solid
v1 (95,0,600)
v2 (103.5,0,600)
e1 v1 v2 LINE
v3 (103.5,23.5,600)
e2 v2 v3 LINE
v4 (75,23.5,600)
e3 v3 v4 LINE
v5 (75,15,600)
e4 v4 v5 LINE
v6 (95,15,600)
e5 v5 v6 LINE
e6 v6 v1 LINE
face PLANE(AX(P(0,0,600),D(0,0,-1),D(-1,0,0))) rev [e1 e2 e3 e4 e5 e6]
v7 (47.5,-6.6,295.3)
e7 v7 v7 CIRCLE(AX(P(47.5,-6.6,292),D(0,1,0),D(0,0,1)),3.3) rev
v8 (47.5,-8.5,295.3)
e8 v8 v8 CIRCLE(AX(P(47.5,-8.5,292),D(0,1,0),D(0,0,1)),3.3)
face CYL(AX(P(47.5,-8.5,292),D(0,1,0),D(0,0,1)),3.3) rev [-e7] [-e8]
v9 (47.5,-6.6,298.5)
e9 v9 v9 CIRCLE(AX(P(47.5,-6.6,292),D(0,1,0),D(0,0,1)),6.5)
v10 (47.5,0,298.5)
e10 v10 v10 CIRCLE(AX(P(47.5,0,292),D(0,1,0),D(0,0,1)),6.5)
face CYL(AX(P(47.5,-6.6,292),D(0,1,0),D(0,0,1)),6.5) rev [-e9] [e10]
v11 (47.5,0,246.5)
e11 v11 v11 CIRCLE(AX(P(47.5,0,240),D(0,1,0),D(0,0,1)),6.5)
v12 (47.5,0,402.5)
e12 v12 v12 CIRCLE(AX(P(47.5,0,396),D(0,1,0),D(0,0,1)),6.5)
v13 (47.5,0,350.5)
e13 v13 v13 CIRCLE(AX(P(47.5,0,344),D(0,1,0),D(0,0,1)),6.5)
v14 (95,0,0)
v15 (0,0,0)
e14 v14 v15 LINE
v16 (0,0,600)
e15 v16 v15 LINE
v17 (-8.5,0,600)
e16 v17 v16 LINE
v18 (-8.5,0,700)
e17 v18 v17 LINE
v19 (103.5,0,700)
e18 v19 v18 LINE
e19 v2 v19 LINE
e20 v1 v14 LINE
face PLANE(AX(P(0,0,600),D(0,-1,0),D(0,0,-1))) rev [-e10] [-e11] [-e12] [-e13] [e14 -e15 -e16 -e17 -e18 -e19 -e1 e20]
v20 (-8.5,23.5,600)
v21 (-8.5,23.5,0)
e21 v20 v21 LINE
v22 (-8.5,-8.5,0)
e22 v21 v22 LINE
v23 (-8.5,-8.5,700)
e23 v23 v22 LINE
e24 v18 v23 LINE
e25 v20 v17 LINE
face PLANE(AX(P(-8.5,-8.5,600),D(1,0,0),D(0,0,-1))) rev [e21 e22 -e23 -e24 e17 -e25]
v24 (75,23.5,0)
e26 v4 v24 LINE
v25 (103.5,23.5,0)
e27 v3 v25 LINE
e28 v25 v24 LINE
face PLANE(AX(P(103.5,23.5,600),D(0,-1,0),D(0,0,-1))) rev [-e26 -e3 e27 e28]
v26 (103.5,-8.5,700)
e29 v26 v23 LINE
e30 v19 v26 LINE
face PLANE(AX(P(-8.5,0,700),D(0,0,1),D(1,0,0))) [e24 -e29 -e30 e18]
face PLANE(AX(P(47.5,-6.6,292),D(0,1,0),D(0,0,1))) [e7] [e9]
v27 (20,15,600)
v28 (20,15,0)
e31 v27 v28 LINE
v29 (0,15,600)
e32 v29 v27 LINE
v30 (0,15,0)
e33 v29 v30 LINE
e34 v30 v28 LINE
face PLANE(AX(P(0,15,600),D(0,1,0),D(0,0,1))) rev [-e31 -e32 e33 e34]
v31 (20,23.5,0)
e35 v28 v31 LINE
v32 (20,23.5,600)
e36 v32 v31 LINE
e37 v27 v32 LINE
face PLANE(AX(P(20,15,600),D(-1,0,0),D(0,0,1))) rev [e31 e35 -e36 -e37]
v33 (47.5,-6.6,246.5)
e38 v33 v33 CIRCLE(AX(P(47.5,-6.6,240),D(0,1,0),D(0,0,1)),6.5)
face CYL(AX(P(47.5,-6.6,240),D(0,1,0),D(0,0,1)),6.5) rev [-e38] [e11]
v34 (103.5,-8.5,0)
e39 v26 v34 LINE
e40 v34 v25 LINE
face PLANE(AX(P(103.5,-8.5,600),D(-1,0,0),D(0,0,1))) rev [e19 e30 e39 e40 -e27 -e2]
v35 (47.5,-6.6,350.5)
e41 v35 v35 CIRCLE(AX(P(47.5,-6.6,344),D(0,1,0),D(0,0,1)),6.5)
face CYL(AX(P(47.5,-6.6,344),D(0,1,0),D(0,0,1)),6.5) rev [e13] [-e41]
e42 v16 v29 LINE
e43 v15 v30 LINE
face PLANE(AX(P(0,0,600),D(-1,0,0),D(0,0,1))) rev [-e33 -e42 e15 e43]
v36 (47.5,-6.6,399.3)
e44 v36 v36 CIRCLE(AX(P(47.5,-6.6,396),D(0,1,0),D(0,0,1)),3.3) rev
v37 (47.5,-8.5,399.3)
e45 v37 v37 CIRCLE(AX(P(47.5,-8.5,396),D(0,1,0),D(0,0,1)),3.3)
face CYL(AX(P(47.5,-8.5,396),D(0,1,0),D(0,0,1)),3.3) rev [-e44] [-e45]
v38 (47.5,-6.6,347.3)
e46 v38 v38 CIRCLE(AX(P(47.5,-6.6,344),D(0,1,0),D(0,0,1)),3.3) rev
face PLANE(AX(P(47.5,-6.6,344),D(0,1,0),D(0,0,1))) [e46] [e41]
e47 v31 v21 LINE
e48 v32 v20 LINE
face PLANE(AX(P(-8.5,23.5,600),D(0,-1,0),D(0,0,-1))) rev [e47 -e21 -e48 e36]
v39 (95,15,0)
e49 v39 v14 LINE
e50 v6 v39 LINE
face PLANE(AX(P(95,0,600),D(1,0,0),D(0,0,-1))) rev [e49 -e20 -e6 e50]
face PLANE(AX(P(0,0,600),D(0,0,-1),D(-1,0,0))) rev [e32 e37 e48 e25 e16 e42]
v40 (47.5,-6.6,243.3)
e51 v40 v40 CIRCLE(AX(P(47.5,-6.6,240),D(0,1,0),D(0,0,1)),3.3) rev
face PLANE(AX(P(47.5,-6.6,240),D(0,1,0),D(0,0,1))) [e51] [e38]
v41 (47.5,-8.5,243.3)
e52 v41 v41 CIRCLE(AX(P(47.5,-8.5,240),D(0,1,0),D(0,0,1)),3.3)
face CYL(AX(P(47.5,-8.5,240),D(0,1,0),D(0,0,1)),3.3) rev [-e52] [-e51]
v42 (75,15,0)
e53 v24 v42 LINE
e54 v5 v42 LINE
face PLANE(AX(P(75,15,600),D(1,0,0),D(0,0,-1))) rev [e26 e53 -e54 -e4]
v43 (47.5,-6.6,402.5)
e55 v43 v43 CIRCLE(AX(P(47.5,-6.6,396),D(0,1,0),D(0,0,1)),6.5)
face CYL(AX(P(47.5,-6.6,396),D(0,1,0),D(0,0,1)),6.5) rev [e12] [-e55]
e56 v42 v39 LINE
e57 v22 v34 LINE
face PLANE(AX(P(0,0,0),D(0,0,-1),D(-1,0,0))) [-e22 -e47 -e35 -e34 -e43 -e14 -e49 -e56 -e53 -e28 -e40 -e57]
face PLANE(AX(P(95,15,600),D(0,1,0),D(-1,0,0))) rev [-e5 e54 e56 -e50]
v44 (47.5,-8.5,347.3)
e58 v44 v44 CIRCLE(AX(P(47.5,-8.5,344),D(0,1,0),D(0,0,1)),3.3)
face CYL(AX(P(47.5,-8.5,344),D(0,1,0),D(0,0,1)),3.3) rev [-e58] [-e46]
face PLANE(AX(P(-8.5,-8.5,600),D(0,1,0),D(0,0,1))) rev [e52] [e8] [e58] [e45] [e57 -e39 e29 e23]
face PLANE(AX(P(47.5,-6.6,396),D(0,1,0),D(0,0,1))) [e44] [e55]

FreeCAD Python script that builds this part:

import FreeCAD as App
import Part
import Sketcher
Q = App.Units.Quantity


def add_polygon(sketch, points):
    """Adds a closed chain of lines whose ends are joined by coincident constraints."""
    first, n = sketch.GeometryCount, len(points)
    for a, b in zip(points, points[1:] + points[:1]):
        sketch.addGeometry(Part.LineSegment(App.Vector(*a, 0), App.Vector(*b, 0)), False)
    for i in range(n):
        sketch.addConstraint(Sketcher.Constraint("Coincident", first + i, 2, first + (i + 1) % n, 1))

doc = App.newDocument("Part")
body = doc.addObject("PartDesign::Body", "Body")

# Sketch on XY plane
sketch1 = body.newObject("Sketcher::SketchObject", "Sketch")
sketch1.AttachmentSupport = (doc.getObject("XY_Plane"), [""])
sketch1.MapMode = "FlatFace"
add_polygon(sketch1, [(95, 0), (0, 0), (0, 15), (20, 15), (20, 24), (-8, 24), (-8, -8), (104, -8), (104, 24), (75, 24), (75, 15), (95, 15)])  # lines 0-11
sketch1.addConstraint(Sketcher.Constraint("Horizontal", 0))
sketch1.addConstraint(Sketcher.Constraint("Vertical", 1))
sketch1.addConstraint(Sketcher.Constraint("Horizontal", 2))
sketch1.addConstraint(Sketcher.Constraint("Vertical", 3))
sketch1.addConstraint(Sketcher.Constraint("Horizontal", 4))
sketch1.addConstraint(Sketcher.Constraint("Vertical", 5))
sketch1.addConstraint(Sketcher.Constraint("Horizontal", 6))
sketch1.addConstraint(Sketcher.Constraint("Vertical", 7))
sketch1.addConstraint(Sketcher.Constraint("Horizontal", 8))
sketch1.addConstraint(Sketcher.Constraint("Vertical", 9))
sketch1.addConstraint(Sketcher.Constraint("Horizontal", 10))
sketch1.addConstraint(Sketcher.Constraint("Vertical", 11))
sketch1.addConstraint(Sketcher.Constraint("Coincident", 0, 2, -1, 1))
sketch1.addConstraint(Sketcher.Constraint("Horizontal", 4, 2, 7, 2))
sketch1.addConstraint(Sketcher.Constraint("Horizontal", 2, 2, 9, 2))
sketch1.addConstraint(Sketcher.Constraint("Equal", 4, 8))
sketch1.addConstraint(Sketcher.Constraint("Equal", 2, 10))
sketch1.addConstraint(Sketcher.Constraint("DistanceX", 0, 2, 0, 1, Q("95 mm")))
sketch1.addConstraint(Sketcher.Constraint("DistanceX", 2, 1, 2, 2, Q("20 mm")))
sketch1.addConstraint(Sketcher.Constraint("DistanceX", 6, 1, 6, 2, Q("112 mm")))
sketch1.addConstraint(Sketcher.Constraint("DistanceY", 1, 1, 1, 2, Q("15 mm")))
sketch1.addConstraint(Sketcher.Constraint("DistanceY", 5, 2, 5, 1, Q("32 mm")))
sketch1.addConstraint(Sketcher.Constraint("DistanceY", 3, 1, 3, 2, Q("8.5 mm")))
pad1 = body.newObject("PartDesign::Pad", "Pad")
pad1.Profile = sketch1
pad1.Length = 600

# Sketch on XZ plane
sketch2 = body.newObject("Sketcher::SketchObject", "Sketch001")
sketch2.AttachmentSupport = (doc.getObject("XZ_Plane"), [""])
sketch2.MapMode = "FlatFace"
sketch2.AttachmentOffset = App.Placement(App.Vector(0, 0, 8.5), App.Rotation())
add_polygon(sketch2, [(-8, 700), (-8, 600), (104, 600), (104, 700)])  # lines 0-3
sketch2.addConstraint(Sketcher.Constraint("Vertical", 0))
sketch2.addConstraint(Sketcher.Constraint("Horizontal", 1))
sketch2.addConstraint(Sketcher.Constraint("Vertical", 2))
sketch2.addConstraint(Sketcher.Constraint("Horizontal", 3))
sketch2.addConstraint(Sketcher.Constraint("DistanceX", 1, 1, 1, 2, Q("112 mm")))
sketch2.addConstraint(Sketcher.Constraint("DistanceY", 0, 2, 0, 1, Q("100 mm")))
sketch2.addConstraint(Sketcher.Constraint("DistanceY", -1, 1, 0, 2, Q("600 mm")))
sketch2.addConstraint(Sketcher.Constraint("DistanceX", 0, 2, -1, 1, Q("8.5 mm")))
pad2 = body.newObject("PartDesign::Pad", "Pad001")
pad2.Profile = sketch2
pad2.Length = 8.5
pad2.Reversed = True

# Sketch on XZ plane
sketch3 = body.newObject("Sketcher::SketchObject", "Sketch002")
sketch3.AttachmentSupport = (doc.getObject("XZ_Plane"), [""])
sketch3.MapMode = "FlatFace"
sketch3.addGeometry(Part.Circle(App.Vector(47.5, 240, 0), App.Vector(0, 0, 1), 3.3), False)
sketch3.addGeometry(Part.Circle(App.Vector(47.5, 292, 0), App.Vector(0, 0, 1), 3.3), False)
sketch3.addGeometry(Part.Circle(App.Vector(47.5, 344, 0), App.Vector(0, 0, 1), 3.3), False)
sketch3.addGeometry(Part.Circle(App.Vector(47.5, 396, 0), App.Vector(0, 0, 1), 3.3), False)
sketch3.addConstraint(Sketcher.Constraint("Equal", 0, 1))
sketch3.addConstraint(Sketcher.Constraint("Equal", 1, 2))
sketch3.addConstraint(Sketcher.Constraint("Equal", 2, 3))
sketch3.addConstraint(Sketcher.Constraint("Vertical", 0, 3, 1, 3))
sketch3.addConstraint(Sketcher.Constraint("Vertical", 1, 3, 2, 3))
sketch3.addConstraint(Sketcher.Constraint("Vertical", 2, 3, 3, 3))
sketch3.addConstraint(Sketcher.Constraint("Diameter", 0, Q("6.6 mm")))
sketch3.addConstraint(Sketcher.Constraint("DistanceY", -1, 1, 0, 3, Q("240 mm")))
sketch3.addConstraint(Sketcher.Constraint("DistanceY", -1, 1, 1, 3, Q("292 mm")))
sketch3.addConstraint(Sketcher.Constraint("DistanceY", -1, 1, 2, 3, Q("344 mm")))
sketch3.addConstraint(Sketcher.Constraint("DistanceY", -1, 1, 3, 3, Q("396 mm")))
sketch3.addConstraint(Sketcher.Constraint("DistanceX", -1, 1, 0, 3, Q("47.5 mm")))
pocket1 = body.newObject("PartDesign::Pocket", "Pocket")
pocket1.Profile = sketch3
pocket1.Type = "ThroughAll"
pocket1.Reversed = True

# Sketch on XZ plane
sketch4 = body.newObject("Sketcher::SketchObject", "Sketch003")
sketch4.AttachmentSupport = (doc.getObject("XZ_Plane"), [""])
sketch4.MapMode = "FlatFace"
sketch4.addGeometry(Part.Circle(App.Vector(48, 240, 0), App.Vector(0, 0, 1), 6), False)
sketch4.addGeometry(Part.Circle(App.Vector(48, 292, 0), App.Vector(0, 0, 1), 6), False)
sketch4.addGeometry(Part.Circle(App.Vector(48, 344, 0), App.Vector(0, 0, 1), 6), False)
sketch4.addGeometry(Part.Circle(App.Vector(48, 396, 0), App.Vector(0, 0, 1), 6), False)
sketch4.addConstraint(Sketcher.Constraint("Equal", 0, 1))
sketch4.addConstraint(Sketcher.Constraint("Equal", 1, 2))
sketch4.addConstraint(Sketcher.Constraint("Equal", 2, 3))
sketch4.addConstraint(Sketcher.Constraint("Vertical", 0, 3, 1, 3))
sketch4.addConstraint(Sketcher.Constraint("Vertical", 1, 3, 2, 3))
sketch4.addConstraint(Sketcher.Constraint("Vertical", 2, 3, 3, 3))
sketch4.addConstraint(Sketcher.Constraint("Diameter", 0, Q("13 mm")))
sketch4.addConstraint(Sketcher.Constraint("DistanceY", -1, 1, 0, 3, Q("240 mm")))
sketch4.addConstraint(Sketcher.Constraint("DistanceY", -1, 1, 1, 3, Q("292 mm")))
sketch4.addConstraint(Sketcher.Constraint("DistanceY", -1, 1, 2, 3, Q("344 mm")))
sketch4.addConstraint(Sketcher.Constraint("DistanceY", -1, 1, 3, 3, Q("396 mm")))
sketch4.addConstraint(Sketcher.Constraint("DistanceX", -1, 1, 0, 3, Q("47.5 mm")))
pocket2 = body.newObject("PartDesign::Pocket", "Pocket001")
pocket2.Profile = sketch4
pocket2.Length = 6.6
pocket2.Reversed = True

doc.recompute()
